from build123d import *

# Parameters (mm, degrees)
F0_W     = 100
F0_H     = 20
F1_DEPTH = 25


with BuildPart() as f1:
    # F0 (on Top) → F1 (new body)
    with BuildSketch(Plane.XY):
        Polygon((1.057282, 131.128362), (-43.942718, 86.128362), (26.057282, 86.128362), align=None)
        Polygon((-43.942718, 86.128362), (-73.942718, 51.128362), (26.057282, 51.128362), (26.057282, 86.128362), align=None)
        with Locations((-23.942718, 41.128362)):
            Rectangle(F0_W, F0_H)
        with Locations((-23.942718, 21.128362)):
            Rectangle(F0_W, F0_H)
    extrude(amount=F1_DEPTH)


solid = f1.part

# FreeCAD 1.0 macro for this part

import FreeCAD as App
import Part
import Sketcher
Q = App.Units.Quantity


def add_polygon(sketch, points):
    """Adds a closed chain of lines whose ends are joined by coincident constraints."""
    first, n = sketch.GeometryCount, len(points)
    for a, b in zip(points, points[1:] + points[:1]):
        sketch.addGeometry(Part.LineSegment(App.Vector(*a, 0), App.Vector(*b, 0)), False)
    for i in range(n):
        sketch.addConstraint(Sketcher.Constraint("Coincident", first + i, 2, first + (i + 1) % n, 1))

doc = App.newDocument("Part")
body = doc.addObject("PartDesign::Body", "Body")

sketch1 = body.newObject("Sketcher::SketchObject", "Sketch")
sketch1.AttachmentSupport = (doc.getObject("XY_Plane"), [""])
sketch1.MapMode = "FlatFace"
add_polygon(sketch1, [(1, 131), (-44, 86), (-74, 51), (-74, 11), (26, 11), (26, 86)])
sketch1.addConstraint([
    Sketcher.Constraint("Vertical", 2),
    Sketcher.Constraint("Horizontal", 3),
    Sketcher.Constraint("Vertical", 4),
    Sketcher.Constraint("Horizontal", 0, 2, 4, 2),
    Sketcher.Constraint("DistanceX", 3, 1, 3, 2, 100.0),
    Sketcher.Constraint("DistanceY", 2, 2, 2, 1, 40.0),
    Sketcher.Constraint("DistanceY", 4, 1, 4, 2, 75.0),
    Sketcher.Constraint("Angle", 0, Q("-135 deg")),
    Sketcher.Constraint("DistanceX", 1, 2, 0, 2, 30.0),
    Sketcher.Constraint("DistanceX", 5, 2, 4, 2, 25.0),
    Sketcher.Constraint("DistanceY", -1, 1, 0, 2, 86.128362),
    Sketcher.Constraint("DistanceX", 1, 2, -1, 1, 73.942718),
])
pad1 = body.newObject("PartDesign::Pad", "Pad")
pad1.Profile = sketch1
pad1.Length = 25

doc.recompute()
